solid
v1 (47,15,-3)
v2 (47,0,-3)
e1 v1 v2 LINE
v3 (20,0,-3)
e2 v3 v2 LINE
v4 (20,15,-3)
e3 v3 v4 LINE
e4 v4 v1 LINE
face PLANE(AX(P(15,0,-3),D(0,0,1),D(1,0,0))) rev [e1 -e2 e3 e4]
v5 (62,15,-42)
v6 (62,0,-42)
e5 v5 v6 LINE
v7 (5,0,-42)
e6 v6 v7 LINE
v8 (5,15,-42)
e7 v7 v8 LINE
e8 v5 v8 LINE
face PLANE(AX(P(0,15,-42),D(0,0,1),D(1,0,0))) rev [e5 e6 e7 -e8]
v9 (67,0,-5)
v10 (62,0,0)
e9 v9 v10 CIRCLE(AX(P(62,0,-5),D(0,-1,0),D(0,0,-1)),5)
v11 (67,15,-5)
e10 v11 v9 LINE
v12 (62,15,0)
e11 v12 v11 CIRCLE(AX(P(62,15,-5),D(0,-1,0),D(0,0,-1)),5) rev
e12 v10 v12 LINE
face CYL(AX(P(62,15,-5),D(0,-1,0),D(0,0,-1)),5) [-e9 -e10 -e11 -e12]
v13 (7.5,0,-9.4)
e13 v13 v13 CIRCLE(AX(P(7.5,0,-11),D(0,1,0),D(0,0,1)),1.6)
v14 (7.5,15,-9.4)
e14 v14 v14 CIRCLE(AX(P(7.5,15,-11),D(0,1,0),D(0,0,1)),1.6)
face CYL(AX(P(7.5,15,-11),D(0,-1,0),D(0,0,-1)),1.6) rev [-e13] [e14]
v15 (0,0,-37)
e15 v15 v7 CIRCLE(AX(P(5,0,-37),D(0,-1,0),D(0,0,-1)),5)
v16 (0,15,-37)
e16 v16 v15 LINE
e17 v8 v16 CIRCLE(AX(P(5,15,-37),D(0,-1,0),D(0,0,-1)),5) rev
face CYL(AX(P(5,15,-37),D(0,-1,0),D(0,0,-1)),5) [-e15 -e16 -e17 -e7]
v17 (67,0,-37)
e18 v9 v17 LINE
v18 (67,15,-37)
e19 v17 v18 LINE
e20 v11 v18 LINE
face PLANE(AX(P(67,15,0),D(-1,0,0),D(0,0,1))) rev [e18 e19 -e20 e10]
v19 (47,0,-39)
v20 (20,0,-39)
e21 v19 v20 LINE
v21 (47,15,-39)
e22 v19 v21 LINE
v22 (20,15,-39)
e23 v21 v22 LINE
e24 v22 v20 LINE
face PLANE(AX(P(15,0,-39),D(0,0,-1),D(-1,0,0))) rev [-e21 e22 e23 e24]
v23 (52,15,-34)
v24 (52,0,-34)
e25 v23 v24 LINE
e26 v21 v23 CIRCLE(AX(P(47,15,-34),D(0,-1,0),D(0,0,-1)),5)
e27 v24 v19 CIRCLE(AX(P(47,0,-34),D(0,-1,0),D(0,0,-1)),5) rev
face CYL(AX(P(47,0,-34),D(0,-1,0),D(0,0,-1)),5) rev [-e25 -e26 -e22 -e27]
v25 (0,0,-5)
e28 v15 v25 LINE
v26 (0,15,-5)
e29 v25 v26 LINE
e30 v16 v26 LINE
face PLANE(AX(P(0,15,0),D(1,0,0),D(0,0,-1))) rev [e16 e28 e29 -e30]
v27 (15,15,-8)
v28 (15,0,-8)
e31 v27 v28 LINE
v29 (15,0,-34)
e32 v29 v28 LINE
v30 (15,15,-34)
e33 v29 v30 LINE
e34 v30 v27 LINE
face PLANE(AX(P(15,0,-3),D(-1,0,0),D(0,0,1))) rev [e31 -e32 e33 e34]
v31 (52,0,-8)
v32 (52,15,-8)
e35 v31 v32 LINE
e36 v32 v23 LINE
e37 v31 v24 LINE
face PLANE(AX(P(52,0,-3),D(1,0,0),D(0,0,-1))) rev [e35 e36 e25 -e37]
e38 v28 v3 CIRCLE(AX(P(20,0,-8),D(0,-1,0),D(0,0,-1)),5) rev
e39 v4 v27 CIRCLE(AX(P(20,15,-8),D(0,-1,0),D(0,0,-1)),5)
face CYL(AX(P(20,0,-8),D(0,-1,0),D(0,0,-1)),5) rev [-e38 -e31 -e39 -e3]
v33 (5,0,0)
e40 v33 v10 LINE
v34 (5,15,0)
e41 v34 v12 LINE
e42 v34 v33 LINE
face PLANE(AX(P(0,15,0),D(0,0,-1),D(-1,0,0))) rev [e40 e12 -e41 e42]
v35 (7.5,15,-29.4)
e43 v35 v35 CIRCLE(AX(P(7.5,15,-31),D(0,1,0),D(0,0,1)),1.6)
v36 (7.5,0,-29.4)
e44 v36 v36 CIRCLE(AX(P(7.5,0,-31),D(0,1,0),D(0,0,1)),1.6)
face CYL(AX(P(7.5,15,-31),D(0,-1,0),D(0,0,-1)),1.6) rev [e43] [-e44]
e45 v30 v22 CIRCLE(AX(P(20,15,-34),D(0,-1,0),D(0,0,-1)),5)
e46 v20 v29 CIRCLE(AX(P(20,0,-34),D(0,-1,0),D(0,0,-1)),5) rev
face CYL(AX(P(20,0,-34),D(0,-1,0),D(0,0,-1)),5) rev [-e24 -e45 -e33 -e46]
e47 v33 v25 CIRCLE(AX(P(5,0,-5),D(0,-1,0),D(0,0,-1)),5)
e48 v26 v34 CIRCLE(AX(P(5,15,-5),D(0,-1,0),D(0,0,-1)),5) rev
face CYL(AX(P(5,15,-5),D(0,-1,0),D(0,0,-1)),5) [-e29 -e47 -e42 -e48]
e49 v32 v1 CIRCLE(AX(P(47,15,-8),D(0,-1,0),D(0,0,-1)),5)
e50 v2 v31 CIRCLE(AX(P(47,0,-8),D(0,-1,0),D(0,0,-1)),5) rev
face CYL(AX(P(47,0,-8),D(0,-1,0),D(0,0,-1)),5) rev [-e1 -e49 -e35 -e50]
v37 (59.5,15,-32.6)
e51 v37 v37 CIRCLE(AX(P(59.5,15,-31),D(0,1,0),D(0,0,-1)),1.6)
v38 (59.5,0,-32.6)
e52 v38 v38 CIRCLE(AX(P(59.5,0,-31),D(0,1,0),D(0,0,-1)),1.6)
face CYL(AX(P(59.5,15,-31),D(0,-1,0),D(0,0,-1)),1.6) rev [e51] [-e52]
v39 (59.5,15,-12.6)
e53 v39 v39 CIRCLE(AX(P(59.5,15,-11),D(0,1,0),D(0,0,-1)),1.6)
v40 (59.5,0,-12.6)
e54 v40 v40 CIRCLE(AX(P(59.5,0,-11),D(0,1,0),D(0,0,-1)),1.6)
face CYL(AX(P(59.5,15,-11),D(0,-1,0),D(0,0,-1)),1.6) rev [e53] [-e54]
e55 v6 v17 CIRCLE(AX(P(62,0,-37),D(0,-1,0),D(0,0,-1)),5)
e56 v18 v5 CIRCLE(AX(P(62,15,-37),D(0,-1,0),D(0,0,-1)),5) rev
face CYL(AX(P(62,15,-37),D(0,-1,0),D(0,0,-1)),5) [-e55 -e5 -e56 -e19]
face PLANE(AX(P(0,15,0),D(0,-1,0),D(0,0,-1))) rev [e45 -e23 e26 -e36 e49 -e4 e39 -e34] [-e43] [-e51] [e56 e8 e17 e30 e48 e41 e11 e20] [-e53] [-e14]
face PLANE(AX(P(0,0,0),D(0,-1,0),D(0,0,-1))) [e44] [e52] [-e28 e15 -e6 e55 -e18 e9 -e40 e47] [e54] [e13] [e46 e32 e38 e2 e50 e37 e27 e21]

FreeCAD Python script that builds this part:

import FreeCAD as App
import Part
import Sketcher
from FreeCAD import Vector


def edges_at(feature, points):
    """Names of the edges that pass closest to the given points."""
    edges = feature.Shape.Edges
    near = lambda p: min(range(len(edges)), key=lambda i: edges[i].distToShape(Part.Vertex(*p))[0])
    return sorted({f"Edge{near(p) + 1}" for p in points})

doc = App.newDocument("Part")
params = doc.addObject("Spreadsheet::Sheet", "Params")
for row, (alias, value) in enumerate([
    ("sketch1_diameter", "3.2 mm"),
    ("sketch1_width", "67 mm"),
    ("sketch1_height", "42 mm"),
    ("pad1_length", "15 mm"),
    ("sketch2_width", "37 mm"),
    ("sketch2_height", "36 mm"),
    ("fillet_radius", "5 mm"),
], start=1):
    params.set(f"A{row}", alias)
    params.set(f"B{row}", "=" + value)
    params.setAlias(f"B{row}", alias)

body = doc.addObject("PartDesign::Body", "Body")

sketch1 = doc.addObject("Sketcher::SketchObject", "Sketch")
body.addObject(sketch1)
sketch1.AttachmentSupport = (doc.XZ_Plane, [""])
sketch1.MapMode = "FlatFace"
sketch1.addGeometry([
    Part.LineSegment(Vector(0, -42, 0), Vector(0, 0, 0)),
    Part.LineSegment(Vector(0, 0, 0), Vector(67, 0, 0)),
    Part.LineSegment(Vector(67, 0, 0), Vector(67, -42, 0)),
    Part.LineSegment(Vector(67, -42, 0), Vector(0, -42, 0)),
    Part.Circle(Vector(7.5, -11, 0), Vector(0, 0, 1), 1.6),
    Part.Circle(Vector(59.5, -11, 0), Vector(0, 0, 1), 1.6),
    Part.Circle(Vector(7.5, -31, 0), Vector(0, 0, 1), 1.6),
    Part.Circle(Vector(59.5, -31, 0), Vector(0, 0, 1), 1.6),
], False)
sketch1.addConstraint([
    Sketcher.Constraint("Coincident", 0, 2, 1, 1),
    Sketcher.Constraint("Coincident", 1, 2, 2, 1),
    Sketcher.Constraint("Coincident", 2, 2, 3, 1),
    Sketcher.Constraint("Coincident", 3, 2, 0, 1),
    Sketcher.Constraint("Vertical", 0),
    Sketcher.Constraint("Horizontal", 1),
    Sketcher.Constraint("Vertical", 2),
    Sketcher.Constraint("Horizontal", 3),
    Sketcher.Constraint("Coincident", 0, 2, -1, 1),
    Sketcher.Constraint("Equal", 4, 5),
    Sketcher.Constraint("Equal", 5, 6),
    Sketcher.Constraint("Equal", 6, 7),
    Sketcher.Constraint("Horizontal", 4, 3, 5, 3),
    Sketcher.Constraint("Horizontal", 6, 3, 7, 3),
    Sketcher.Constraint("Vertical", 4, 3, 6, 3),
    Sketcher.Constraint("Vertical", 5, 3, 7, 3),
    Sketcher.Constraint("Diameter", 4, 3.2),
    Sketcher.Constraint("DistanceX", 1, 1, 1, 2, 67.0),
    Sketcher.Constraint("DistanceY", 0, 1, 0, 2, 42.0),
    Sketcher.Constraint("DistanceY", 4, 3, -1, 1, 11.0),
    Sketcher.Constraint("DistanceY", 6, 3, -1, 1, 31.0),
    Sketcher.Constraint("DistanceX", 4, 3, 5, 3, 52.0),
    Sketcher.Constraint("DistanceX", -1, 1, 4, 3, 7.5),
])
sketch1.setExpression("Constraints[16]", "Params.sketch1_diameter")
sketch1.setExpression("Constraints[17]", "Params.sketch1_width")
sketch1.setExpression("Constraints[18]", "Params.sketch1_height")
pad1 = doc.addObject("PartDesign::Pad", "Pad")
body.addObject(pad1)
pad1.Profile = sketch1
pad1.setExpression("Length", "Params.pad1_length")
pad1.Reversed = True

sketch2 = doc.addObject("Sketcher::SketchObject", "Sketch001")
body.addObject(sketch2)
sketch2.AttachmentSupport = (doc.XZ_Plane, [""])
sketch2.MapMode = "FlatFace"
sketch2.AttachmentOffset = App.Placement(Vector(0, 0, -15), App.Rotation())
sketch2.addGeometry([
    Part.LineSegment(Vector(15, -39, 0), Vector(15, -3, 0)),
    Part.LineSegment(Vector(15, -3, 0), Vector(52, -3, 0)),
    Part.LineSegment(Vector(52, -3, 0), Vector(52, -39, 0)),
    Part.LineSegment(Vector(52, -39, 0), Vector(15, -39, 0)),
], False)
sketch2.addConstraint([
    Sketcher.Constraint("Coincident", 0, 2, 1, 1),
    Sketcher.Constraint("Coincident", 1, 2, 2, 1),
    Sketcher.Constraint("Coincident", 2, 2, 3, 1),
    Sketcher.Constraint("Coincident", 3, 2, 0, 1),
    Sketcher.Constraint("Vertical", 0),
    Sketcher.Constraint("Horizontal", 1),
    Sketcher.Constraint("Vertical", 2),
    Sketcher.Constraint("Horizontal", 3),
    Sketcher.Constraint("DistanceX", 1, 1, 1, 2, 37.0),
    Sketcher.Constraint("DistanceY", 0, 1, 0, 2, 36.0),
    Sketcher.Constraint("DistanceX", -1, 1, 0, 2, 15.0),
    Sketcher.Constraint("DistanceY", 0, 2, -1, 1, 3.0),
])
sketch2.setExpression("Constraints[8]", "Params.sketch2_width")
sketch2.setExpression("Constraints[9]", "Params.sketch2_height")
pocket1 = doc.addObject("PartDesign::Pocket", "Pocket")
body.addObject(pocket1)
pocket1.Profile = sketch2
pocket1.Type = "ThroughAll"
pocket1.Reversed = True
doc.recompute()

fillet = doc.addObject("PartDesign::Fillet", "Fillet")
body.addObject(fillet)
fillet.Base = (pocket1, edges_at(pocket1, [
    (52, 7.5, -39),
    (52, 7.5, -3),
    (15, 7.5, -3),
    (15, 7.5, -39),
    (0, 7.5, -42),
    (67, 7.5, -42),
    (67, 7.5, 0),
    (0, 7.5, 0),
]))
fillet.setExpression("Radius", "Params.fillet_radius")

doc.recompute()
